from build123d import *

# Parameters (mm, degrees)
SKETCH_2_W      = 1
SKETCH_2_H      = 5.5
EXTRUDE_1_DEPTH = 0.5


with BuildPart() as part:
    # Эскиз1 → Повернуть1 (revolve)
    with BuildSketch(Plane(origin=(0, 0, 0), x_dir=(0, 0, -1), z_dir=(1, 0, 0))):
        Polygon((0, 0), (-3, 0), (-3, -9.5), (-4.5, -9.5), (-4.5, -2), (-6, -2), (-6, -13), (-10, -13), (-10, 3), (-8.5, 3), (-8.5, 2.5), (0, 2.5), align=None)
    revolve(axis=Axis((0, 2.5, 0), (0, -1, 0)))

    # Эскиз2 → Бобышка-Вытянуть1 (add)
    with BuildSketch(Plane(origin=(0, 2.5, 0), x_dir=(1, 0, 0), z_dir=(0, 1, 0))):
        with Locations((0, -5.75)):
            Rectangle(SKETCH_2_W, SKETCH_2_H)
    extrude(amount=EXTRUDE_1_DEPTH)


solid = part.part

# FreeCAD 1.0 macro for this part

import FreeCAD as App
import Part
import Sketcher
Q = App.Units.Quantity

doc = App.newDocument("Part")
params = doc.addObject("Spreadsheet::Sheet", "Params")
for row, (alias, value) in enumerate([
    ("sketch1_width", "16 mm"),
    ("sketch1_width2", "11 mm"),
    ("sketch1_height", "3 mm"),
    ("sketch1_height2", "4 mm"),
    ("sketch1_width3", "2.5 mm"),
    ("revolution_angle", "360 deg"),
    ("sketch2_width", "1 mm"),
    ("sketch2_height", "5.5 mm"),
    ("pad1_length", "0.5 mm"),
], start=1):
    params.set(f"A{row}", alias)
    params.set(f"B{row}", "=" + value)
    params.setAlias(f"B{row}", alias)

body = doc.addObject("PartDesign::Body", "Body")

sketch1 = doc.addObject("Sketcher::SketchObject", "Sketch")
body.addObject(sketch1)
sketch1.AttachmentSupport = (doc.YZ_Plane, [""])
sketch1.MapMode = "FlatFace"
sketch1.addGeometry([
    Part.LineSegment(App.Vector(0, 3, 0), App.Vector(0, 0, 0)),
    Part.LineSegment(App.Vector(0, 0, 0), App.Vector(2.5, 0, 0)),
    Part.LineSegment(App.Vector(2.5, 0, 0), App.Vector(2.5, 8.5, 0)),
    Part.LineSegment(App.Vector(2.5, 8.5, 0), App.Vector(3, 8.5, 0)),
    Part.LineSegment(App.Vector(3, 8.5, 0), App.Vector(3, 10, 0)),
    Part.LineSegment(App.Vector(3, 10, 0), App.Vector(-13, 10, 0)),
    Part.LineSegment(App.Vector(-13, 10, 0), App.Vector(-13, 6, 0)),
    Part.LineSegment(App.Vector(-13, 6, 0), App.Vector(-2, 6, 0)),
    Part.LineSegment(App.Vector(-2, 6, 0), App.Vector(-2, 4.5, 0)),
    Part.LineSegment(App.Vector(-2, 4.5, 0), App.Vector(-9.5, 4.5, 0)),
    Part.LineSegment(App.Vector(-9.5, 4.5, 0), App.Vector(-9.5, 3, 0)),
    Part.LineSegment(App.Vector(-9.5, 3, 0), App.Vector(0, 3, 0)),
], False)
sketch1.addConstraint([
    Sketcher.Constraint("Coincident", 0, 2, 1, 1),
    Sketcher.Constraint("Coincident", 1, 2, 2, 1),
    Sketcher.Constraint("Coincident", 2, 2, 3, 1),
    Sketcher.Constraint("Coincident", 3, 2, 4, 1),
    Sketcher.Constraint("Coincident", 4, 2, 5, 1),
    Sketcher.Constraint("Coincident", 5, 2, 6, 1),
    Sketcher.Constraint("Coincident", 6, 2, 7, 1),
    Sketcher.Constraint("Coincident", 7, 2, 8, 1),
    Sketcher.Constraint("Coincident", 8, 2, 9, 1),
    Sketcher.Constraint("Coincident", 9, 2, 10, 1),
    Sketcher.Constraint("Coincident", 10, 2, 11, 1),
    Sketcher.Constraint("Coincident", 11, 2, 0, 1),
    Sketcher.Constraint("Vertical", 0),
    Sketcher.Constraint("Horizontal", 1),
    Sketcher.Constraint("Vertical", 2),
    Sketcher.Constraint("Horizontal", 3),
    Sketcher.Constraint("Vertical", 4),
    Sketcher.Constraint("Horizontal", 5),
    Sketcher.Constraint("Vertical", 6),
    Sketcher.Constraint("Horizontal", 7),
    Sketcher.Constraint("Vertical", 8),
    Sketcher.Constraint("Horizontal", 9),
    Sketcher.Constraint("Vertical", 10),
    Sketcher.Constraint("Horizontal", 11),
    Sketcher.Constraint("Coincident", 0, 2, -1, 1),
    Sketcher.Constraint("Equal", 4, 8),
    Sketcher.Constraint("Equal", 8, 10),
    Sketcher.Constraint("DistanceX", 5, 2, 5, 1, Q("16 mm")),
    Sketcher.Constraint("DistanceX", 7, 1, 7, 2, Q("11 mm")),
    Sketcher.Constraint("DistanceY", 0, 2, 0, 1, Q("3 mm")),
    Sketcher.Constraint("DistanceY", 6, 2, 6, 1, Q("4 mm")),
    Sketcher.Constraint("DistanceX", 1, 1, 1, 2, Q("2.5 mm")),
    Sketcher.Constraint("DistanceX", 3, 1, 3, 2, Q("0.5 mm")),
    Sketcher.Constraint("DistanceX", 9, 2, 9, 1, Q("7.5 mm")),
    Sketcher.Constraint("DistanceY", 2, 1, 2, 2, Q("8.5 mm")),
])
sketch1.setExpression("Constraints[27]", "Params.sketch1_width")
sketch1.setExpression("Constraints[28]", "Params.sketch1_width2")
sketch1.setExpression("Constraints[29]", "Params.sketch1_height")
sketch1.setExpression("Constraints[30]", "Params.sketch1_height2")
sketch1.setExpression("Constraints[31]", "Params.sketch1_width3")
revolution = doc.addObject("PartDesign::Revolution", "Revolution")
body.addObject(revolution)
revolution.Profile = sketch1
revolution.ReferenceAxis = (sketch1, ["H_Axis"])
revolution.setExpression("Angle", "Params.revolution_angle")

sketch2 = doc.addObject("Sketcher::SketchObject", "Sketch001")
body.addObject(sketch2)
sketch2.AttachmentSupport = (doc.XZ_Plane, [""])
sketch2.MapMode = "FlatFace"
sketch2.AttachmentOffset = App.Placement(App.Vector(0, 0, -2.5), App.Rotation())
sketch2.addGeometry([
    Part.LineSegment(App.Vector(-0.5, 3, 0), App.Vector(-0.5, 8.5, 0)),
    Part.LineSegment(App.Vector(-0.5, 8.5, 0), App.Vector(0.5, 8.5, 0)),
    Part.LineSegment(App.Vector(0.5, 8.5, 0), App.Vector(0.5, 3, 0)),
    Part.LineSegment(App.Vector(0.5, 3, 0), App.Vector(-0.5, 3, 0)),
], False)
sketch2.addConstraint([
    Sketcher.Constraint("Coincident", 0, 2, 1, 1),
    Sketcher.Constraint("Coincident", 1, 2, 2, 1),
    Sketcher.Constraint("Coincident", 2, 2, 3, 1),
    Sketcher.Constraint("Coincident", 3, 2, 0, 1),
    Sketcher.Constraint("Vertical", 0),
    Sketcher.Constraint("Horizontal", 1),
    Sketcher.Constraint("Vertical", 2),
    Sketcher.Constraint("Horizontal", 3),
    Sketcher.Constraint("DistanceX", 1, 1, 1, 2, Q("1 mm")),
    Sketcher.Constraint("DistanceY", 0, 1, 0, 2, Q("5.5 mm")),
    Sketcher.Constraint("DistanceY", -1, 1, 2, 2, Q("3 mm")),
    Sketcher.Constraint("DistanceX", 0, 2, -1, 1, Q("0.5 mm")),
])
sketch2.setExpression("Constraints[8]", "Params.sketch2_width")
sketch2.setExpression("Constraints[9]", "Params.sketch2_height")
pad1 = doc.addObject("PartDesign::Pad", "Pad")
body.addObject(pad1)
pad1.Profile = sketch2
pad1.setExpression("Length", "Params.pad1_length")
pad1.Reversed = True

doc.recompute()
